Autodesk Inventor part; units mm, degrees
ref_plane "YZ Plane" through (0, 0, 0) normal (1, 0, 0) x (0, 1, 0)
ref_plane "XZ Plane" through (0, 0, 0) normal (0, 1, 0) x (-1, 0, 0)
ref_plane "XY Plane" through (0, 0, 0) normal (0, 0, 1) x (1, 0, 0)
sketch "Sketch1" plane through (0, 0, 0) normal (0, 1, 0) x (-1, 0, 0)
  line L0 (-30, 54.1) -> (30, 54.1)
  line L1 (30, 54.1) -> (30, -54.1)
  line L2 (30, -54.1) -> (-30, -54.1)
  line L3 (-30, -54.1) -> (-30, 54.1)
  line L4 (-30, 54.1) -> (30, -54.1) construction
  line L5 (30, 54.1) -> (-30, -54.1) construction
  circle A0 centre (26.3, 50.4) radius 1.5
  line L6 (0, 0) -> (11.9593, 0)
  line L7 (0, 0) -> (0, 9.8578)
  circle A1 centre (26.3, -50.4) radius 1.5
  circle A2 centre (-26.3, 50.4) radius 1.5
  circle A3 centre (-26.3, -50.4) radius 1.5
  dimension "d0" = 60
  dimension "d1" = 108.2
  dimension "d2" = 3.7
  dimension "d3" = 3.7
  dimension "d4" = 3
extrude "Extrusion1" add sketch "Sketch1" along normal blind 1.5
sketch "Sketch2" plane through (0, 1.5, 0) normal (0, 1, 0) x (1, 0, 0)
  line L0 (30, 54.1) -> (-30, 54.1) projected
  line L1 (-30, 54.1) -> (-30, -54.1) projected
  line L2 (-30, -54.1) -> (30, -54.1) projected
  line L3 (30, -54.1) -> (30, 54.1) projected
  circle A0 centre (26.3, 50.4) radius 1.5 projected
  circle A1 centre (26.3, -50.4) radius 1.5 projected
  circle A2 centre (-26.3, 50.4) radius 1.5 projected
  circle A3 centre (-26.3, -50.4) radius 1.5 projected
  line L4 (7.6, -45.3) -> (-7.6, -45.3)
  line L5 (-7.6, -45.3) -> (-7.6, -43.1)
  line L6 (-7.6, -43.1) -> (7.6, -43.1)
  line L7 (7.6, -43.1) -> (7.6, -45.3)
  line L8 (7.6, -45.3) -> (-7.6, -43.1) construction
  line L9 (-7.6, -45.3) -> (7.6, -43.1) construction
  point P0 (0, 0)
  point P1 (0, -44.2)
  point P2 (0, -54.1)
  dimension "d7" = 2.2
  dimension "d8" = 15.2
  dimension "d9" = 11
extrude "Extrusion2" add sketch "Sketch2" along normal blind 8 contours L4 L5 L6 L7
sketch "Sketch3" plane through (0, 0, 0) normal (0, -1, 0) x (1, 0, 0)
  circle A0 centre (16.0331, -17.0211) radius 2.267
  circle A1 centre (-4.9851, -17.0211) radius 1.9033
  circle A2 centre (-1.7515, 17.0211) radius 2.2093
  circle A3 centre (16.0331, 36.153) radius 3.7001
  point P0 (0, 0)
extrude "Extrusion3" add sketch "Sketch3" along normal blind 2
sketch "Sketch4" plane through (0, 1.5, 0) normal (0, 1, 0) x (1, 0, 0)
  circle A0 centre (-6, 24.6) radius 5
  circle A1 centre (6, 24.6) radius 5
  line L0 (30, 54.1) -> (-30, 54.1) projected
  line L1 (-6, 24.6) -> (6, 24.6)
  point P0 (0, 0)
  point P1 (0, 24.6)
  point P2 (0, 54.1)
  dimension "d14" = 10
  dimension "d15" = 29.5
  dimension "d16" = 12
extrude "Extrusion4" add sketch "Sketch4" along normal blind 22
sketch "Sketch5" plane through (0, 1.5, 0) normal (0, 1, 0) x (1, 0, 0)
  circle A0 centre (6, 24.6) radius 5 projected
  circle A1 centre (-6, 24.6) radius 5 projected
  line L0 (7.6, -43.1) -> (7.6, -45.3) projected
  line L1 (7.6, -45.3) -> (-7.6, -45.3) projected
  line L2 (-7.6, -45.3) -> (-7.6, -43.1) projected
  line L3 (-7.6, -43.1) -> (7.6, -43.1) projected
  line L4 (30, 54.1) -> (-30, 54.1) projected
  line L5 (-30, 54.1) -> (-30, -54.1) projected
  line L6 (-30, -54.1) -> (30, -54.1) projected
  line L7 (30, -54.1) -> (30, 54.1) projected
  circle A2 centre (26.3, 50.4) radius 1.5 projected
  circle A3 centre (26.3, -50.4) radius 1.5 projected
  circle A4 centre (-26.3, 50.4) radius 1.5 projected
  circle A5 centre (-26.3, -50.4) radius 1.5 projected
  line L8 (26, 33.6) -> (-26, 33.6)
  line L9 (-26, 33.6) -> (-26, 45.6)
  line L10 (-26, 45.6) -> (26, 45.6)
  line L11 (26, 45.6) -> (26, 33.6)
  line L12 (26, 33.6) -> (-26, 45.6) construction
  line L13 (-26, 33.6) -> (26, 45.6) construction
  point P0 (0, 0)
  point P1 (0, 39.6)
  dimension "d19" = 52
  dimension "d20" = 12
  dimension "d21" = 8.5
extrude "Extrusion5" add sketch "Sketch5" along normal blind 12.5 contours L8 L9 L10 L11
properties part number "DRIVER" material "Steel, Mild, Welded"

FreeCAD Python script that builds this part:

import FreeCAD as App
import Part
import Sketcher

V = App.Vector


def add_polygon(sketch, points):
    """Adds a closed chain of lines whose ends are joined by coincident constraints."""
    first, n = sketch.GeometryCount, len(points)
    for a, b in zip(points, points[1:] + points[:1]):
        sketch.addGeometry(Part.LineSegment(App.Vector(*a, 0), App.Vector(*b, 0)), False)
    for i in range(n):
        sketch.addConstraint(Sketcher.Constraint("Coincident", first + i, 2, first + (i + 1) % n, 1))

doc = App.newDocument("Part")
params = doc.addObject("Spreadsheet::Sheet", "Params")
for row, (alias, value) in enumerate([
    ("sketch1_diameter", "3 mm"),
    ("sketch1_width", "60 mm"),
    ("sketch1_height", "108.2 mm"),
    ("pad1_length", "1.5 mm"),
    ("sketch2_width", "15.2 mm"),
    ("sketch2_height", "2.2 mm"),
    ("pad2_length", "8 mm"),
    ("pad3_length", "2 mm"),
    ("sketch4_diameter", "10 mm"),
    ("pad4_length", "22 mm"),
    ("sketch5_width", "52 mm"),
    ("sketch5_height", "12 mm"),
    ("pad5_length", "12.5 mm"),
], start=1):
    params.set(f"A{row}", alias)
    params.set(f"B{row}", "=" + value)
    params.setAlias(f"B{row}", alias)

body = doc.addObject("PartDesign::Body", "Body")

# Sketch on XZ plane
sketch1 = doc.addObject("Sketcher::SketchObject", "Sketch")
body.addObject(sketch1)
sketch1.AttachmentSupport = (doc.XZ_Plane, [""])
sketch1.MapMode = "FlatFace"
add_polygon(sketch1, [(-30, 54.1), (30, 54.1), (30, -54.1), (-30, -54.1)])  # lines 0-3
sketch1.addGeometry(Part.Circle(V(26.3, -50.4, 0), V(0, 0, 1), 1.5), False)  # 4
sketch1.addGeometry(Part.Circle(V(-26.3, -50.4, 0), V(0, 0, 1), 1.5), False)  # 5
sketch1.addGeometry(Part.Circle(V(26.3, 50.4, 0), V(0, 0, 1), 1.5), False)  # 6
sketch1.addGeometry(Part.Circle(V(-26.3, 50.4, 0), V(0, 0, 1), 1.5), False)  # 7
sketch1.addConstraint([
    Sketcher.Constraint("Horizontal", 0),
    Sketcher.Constraint("Vertical", 1),
    Sketcher.Constraint("Horizontal", 2),
    Sketcher.Constraint("Vertical", 3),
    Sketcher.Constraint("Equal", 4, 5),
    Sketcher.Constraint("Equal", 5, 6),
    Sketcher.Constraint("Equal", 6, 7),
    Sketcher.Constraint("Symmetric", 5, 3, 6, 3, -1, 1),
    Sketcher.Constraint("Symmetric", 4, 3, 7, 3, -1, 1),
    Sketcher.Constraint("Symmetric", 0, 2, 2, 2, -1, 1),
    Sketcher.Constraint("Symmetric", 4, 3, 5, 3, -2),
    Sketcher.Constraint("Diameter", 4, 3.0),
    Sketcher.Constraint("DistanceX", 0, 1, 0, 2, 60.0),
    Sketcher.Constraint("DistanceY", 1, 2, 1, 1, 108.2),
    Sketcher.Constraint("DistanceX", 6, 3, 0, 2, 3.7),
    Sketcher.Constraint("DistanceY", 6, 3, 0, 2, 3.7),
])
sketch1.setExpression("Constraints[15]", "Params.sketch1_diameter")
sketch1.setExpression("Constraints[16]", "Params.sketch1_width")
sketch1.setExpression("Constraints[17]", "Params.sketch1_height")
pad1 = doc.addObject("PartDesign::Pad", "Pad")
body.addObject(pad1)
pad1.Profile = sketch1
pad1.setExpression("Length", "Params.pad1_length")
pad1.Reversed = True

# Sketch on XZ plane
sketch2 = doc.addObject("Sketcher::SketchObject", "Sketch001")
body.addObject(sketch2)
sketch2.AttachmentSupport = (doc.XZ_Plane, [""])
sketch2.MapMode = "FlatFace"
sketch2.AttachmentOffset = App.Placement(V(0, 0, -1.5), App.Rotation())
add_polygon(sketch2, [(-7.6, 45.3), (7.6, 45.3), (7.6, 43.1), (-7.6, 43.1)])  # lines 0-3
sketch2.addConstraint([
    Sketcher.Constraint("Horizontal", 0),
    Sketcher.Constraint("Vertical", 1),
    Sketcher.Constraint("Horizontal", 2),
    Sketcher.Constraint("Vertical", 3),
    Sketcher.Constraint("DistanceX", 0, 1, 0, 2, 15.2),
    Sketcher.Constraint("DistanceY", 1, 2, 1, 1, 2.2),
    Sketcher.Constraint("DistanceX", -1, 1, 0, 2, 7.6),
    Sketcher.Constraint("DistanceY", -1, 1, 0, 2, 45.3),
])
sketch2.setExpression("Constraints[8]", "Params.sketch2_width")
sketch2.setExpression("Constraints[9]", "Params.sketch2_height")
pad2 = doc.addObject("PartDesign::Pad", "Pad001")
body.addObject(pad2)
pad2.Profile = sketch2
pad2.setExpression("Length", "Params.pad2_length")
pad2.Reversed = True

# Sketch on XZ plane
sketch3 = doc.addObject("Sketcher::SketchObject", "Sketch002")
body.addObject(sketch3)
sketch3.AttachmentSupport = (doc.XZ_Plane, [""])
sketch3.MapMode = "FlatFace"
sketch3.addGeometry([
    Part.Circle(V(16, -17, 0), V(0, 0, 1), 2.3),
    Part.Circle(V(-5, -17, 0), V(0, 0, 1), 1.9),
    Part.Circle(V(-1.8, 17, 0), V(0, 0, 1), 2.2),
    Part.Circle(V(16, 36.2, 0), V(0, 0, 1), 3.7),
], False)
sketch3.addConstraint([
    Sketcher.Constraint("Horizontal", 0, 3, 1, 3),
    Sketcher.Constraint("Vertical", 0, 3, 3, 3),
    Sketcher.Constraint("Diameter", 0, 4.534),
    Sketcher.Constraint("Diameter", 1, 3.8066),
    Sketcher.Constraint("Diameter", 2, 4.4186),
    Sketcher.Constraint("Diameter", 3, 7.4002),
    Sketcher.Constraint("DistanceX", -1, 1, 0, 3, 16.033),
    Sketcher.Constraint("DistanceY", 0, 3, -1, 1, 17.021),
    Sketcher.Constraint("DistanceX", 1, 3, -1, 1, 4.985),
    Sketcher.Constraint("DistanceY", -1, 1, 2, 3, 17.021),
    Sketcher.Constraint("DistanceY", -1, 1, 3, 3, 36.153),
    Sketcher.Constraint("DistanceX", 2, 3, -1, 1, 1.7515),
])
pad3 = doc.addObject("PartDesign::Pad", "Pad002")
body.addObject(pad3)
pad3.Profile = sketch3
pad3.setExpression("Length", "Params.pad3_length")

# Sketch on XZ plane
sketch4 = doc.addObject("Sketcher::SketchObject", "Sketch003")
body.addObject(sketch4)
sketch4.AttachmentSupport = (doc.XZ_Plane, [""])
sketch4.MapMode = "FlatFace"
sketch4.AttachmentOffset = App.Placement(V(0, 0, -1.5), App.Rotation())
sketch4.addGeometry([
    Part.Circle(V(-6, -25, 0), V(0, 0, 1), 5),
    Part.Circle(V(6, -25, 0), V(0, 0, 1), 5),
], False)
sketch4.addConstraint([
    Sketcher.Constraint("Equal", 0, 1),
    Sketcher.Constraint("Symmetric", 0, 3, 1, 3, -2),
    Sketcher.Constraint("Diameter", 0, 10.0),
    Sketcher.Constraint("DistanceX", 0, 3, 1, 3, 12.0),
    Sketcher.Constraint("DistanceY", 0, 3, -1, 1, 24.6),
])
sketch4.setExpression("Constraints[2]", "Params.sketch4_diameter")
pad4 = doc.addObject("PartDesign::Pad", "Pad003")
body.addObject(pad4)
pad4.Profile = sketch4
pad4.setExpression("Length", "Params.pad4_length")
pad4.Reversed = True

# Sketch on XZ plane
sketch5 = doc.addObject("Sketcher::SketchObject", "Sketch004")
body.addObject(sketch5)
sketch5.AttachmentSupport = (doc.XZ_Plane, [""])
sketch5.MapMode = "FlatFace"
sketch5.AttachmentOffset = App.Placement(V(0, 0, -1.5), App.Rotation())
add_polygon(sketch5, [(-26, -34), (26, -34), (26, -46), (-26, -46)])  # lines 0-3
sketch5.addConstraint([
    Sketcher.Constraint("Horizontal", 0),
    Sketcher.Constraint("Vertical", 1),
    Sketcher.Constraint("Horizontal", 2),
    Sketcher.Constraint("Vertical", 3),
    Sketcher.Constraint("DistanceX", 0, 1, 0, 2, 52.0),
    Sketcher.Constraint("DistanceY", 1, 2, 1, 1, 12.0),
    Sketcher.Constraint("DistanceX", -1, 1, 0, 2, 26.0),
    Sketcher.Constraint("DistanceY", 0, 2, -1, 1, 33.6),
])
sketch5.setExpression("Constraints[8]", "Params.sketch5_width")
sketch5.setExpression("Constraints[9]", "Params.sketch5_height")
pad5 = doc.addObject("PartDesign::Pad", "Pad004")
body.addObject(pad5)
pad5.Profile = sketch5
pad5.setExpression("Length", "Params.pad5_length")
pad5.Reversed = True

doc.recompute()
